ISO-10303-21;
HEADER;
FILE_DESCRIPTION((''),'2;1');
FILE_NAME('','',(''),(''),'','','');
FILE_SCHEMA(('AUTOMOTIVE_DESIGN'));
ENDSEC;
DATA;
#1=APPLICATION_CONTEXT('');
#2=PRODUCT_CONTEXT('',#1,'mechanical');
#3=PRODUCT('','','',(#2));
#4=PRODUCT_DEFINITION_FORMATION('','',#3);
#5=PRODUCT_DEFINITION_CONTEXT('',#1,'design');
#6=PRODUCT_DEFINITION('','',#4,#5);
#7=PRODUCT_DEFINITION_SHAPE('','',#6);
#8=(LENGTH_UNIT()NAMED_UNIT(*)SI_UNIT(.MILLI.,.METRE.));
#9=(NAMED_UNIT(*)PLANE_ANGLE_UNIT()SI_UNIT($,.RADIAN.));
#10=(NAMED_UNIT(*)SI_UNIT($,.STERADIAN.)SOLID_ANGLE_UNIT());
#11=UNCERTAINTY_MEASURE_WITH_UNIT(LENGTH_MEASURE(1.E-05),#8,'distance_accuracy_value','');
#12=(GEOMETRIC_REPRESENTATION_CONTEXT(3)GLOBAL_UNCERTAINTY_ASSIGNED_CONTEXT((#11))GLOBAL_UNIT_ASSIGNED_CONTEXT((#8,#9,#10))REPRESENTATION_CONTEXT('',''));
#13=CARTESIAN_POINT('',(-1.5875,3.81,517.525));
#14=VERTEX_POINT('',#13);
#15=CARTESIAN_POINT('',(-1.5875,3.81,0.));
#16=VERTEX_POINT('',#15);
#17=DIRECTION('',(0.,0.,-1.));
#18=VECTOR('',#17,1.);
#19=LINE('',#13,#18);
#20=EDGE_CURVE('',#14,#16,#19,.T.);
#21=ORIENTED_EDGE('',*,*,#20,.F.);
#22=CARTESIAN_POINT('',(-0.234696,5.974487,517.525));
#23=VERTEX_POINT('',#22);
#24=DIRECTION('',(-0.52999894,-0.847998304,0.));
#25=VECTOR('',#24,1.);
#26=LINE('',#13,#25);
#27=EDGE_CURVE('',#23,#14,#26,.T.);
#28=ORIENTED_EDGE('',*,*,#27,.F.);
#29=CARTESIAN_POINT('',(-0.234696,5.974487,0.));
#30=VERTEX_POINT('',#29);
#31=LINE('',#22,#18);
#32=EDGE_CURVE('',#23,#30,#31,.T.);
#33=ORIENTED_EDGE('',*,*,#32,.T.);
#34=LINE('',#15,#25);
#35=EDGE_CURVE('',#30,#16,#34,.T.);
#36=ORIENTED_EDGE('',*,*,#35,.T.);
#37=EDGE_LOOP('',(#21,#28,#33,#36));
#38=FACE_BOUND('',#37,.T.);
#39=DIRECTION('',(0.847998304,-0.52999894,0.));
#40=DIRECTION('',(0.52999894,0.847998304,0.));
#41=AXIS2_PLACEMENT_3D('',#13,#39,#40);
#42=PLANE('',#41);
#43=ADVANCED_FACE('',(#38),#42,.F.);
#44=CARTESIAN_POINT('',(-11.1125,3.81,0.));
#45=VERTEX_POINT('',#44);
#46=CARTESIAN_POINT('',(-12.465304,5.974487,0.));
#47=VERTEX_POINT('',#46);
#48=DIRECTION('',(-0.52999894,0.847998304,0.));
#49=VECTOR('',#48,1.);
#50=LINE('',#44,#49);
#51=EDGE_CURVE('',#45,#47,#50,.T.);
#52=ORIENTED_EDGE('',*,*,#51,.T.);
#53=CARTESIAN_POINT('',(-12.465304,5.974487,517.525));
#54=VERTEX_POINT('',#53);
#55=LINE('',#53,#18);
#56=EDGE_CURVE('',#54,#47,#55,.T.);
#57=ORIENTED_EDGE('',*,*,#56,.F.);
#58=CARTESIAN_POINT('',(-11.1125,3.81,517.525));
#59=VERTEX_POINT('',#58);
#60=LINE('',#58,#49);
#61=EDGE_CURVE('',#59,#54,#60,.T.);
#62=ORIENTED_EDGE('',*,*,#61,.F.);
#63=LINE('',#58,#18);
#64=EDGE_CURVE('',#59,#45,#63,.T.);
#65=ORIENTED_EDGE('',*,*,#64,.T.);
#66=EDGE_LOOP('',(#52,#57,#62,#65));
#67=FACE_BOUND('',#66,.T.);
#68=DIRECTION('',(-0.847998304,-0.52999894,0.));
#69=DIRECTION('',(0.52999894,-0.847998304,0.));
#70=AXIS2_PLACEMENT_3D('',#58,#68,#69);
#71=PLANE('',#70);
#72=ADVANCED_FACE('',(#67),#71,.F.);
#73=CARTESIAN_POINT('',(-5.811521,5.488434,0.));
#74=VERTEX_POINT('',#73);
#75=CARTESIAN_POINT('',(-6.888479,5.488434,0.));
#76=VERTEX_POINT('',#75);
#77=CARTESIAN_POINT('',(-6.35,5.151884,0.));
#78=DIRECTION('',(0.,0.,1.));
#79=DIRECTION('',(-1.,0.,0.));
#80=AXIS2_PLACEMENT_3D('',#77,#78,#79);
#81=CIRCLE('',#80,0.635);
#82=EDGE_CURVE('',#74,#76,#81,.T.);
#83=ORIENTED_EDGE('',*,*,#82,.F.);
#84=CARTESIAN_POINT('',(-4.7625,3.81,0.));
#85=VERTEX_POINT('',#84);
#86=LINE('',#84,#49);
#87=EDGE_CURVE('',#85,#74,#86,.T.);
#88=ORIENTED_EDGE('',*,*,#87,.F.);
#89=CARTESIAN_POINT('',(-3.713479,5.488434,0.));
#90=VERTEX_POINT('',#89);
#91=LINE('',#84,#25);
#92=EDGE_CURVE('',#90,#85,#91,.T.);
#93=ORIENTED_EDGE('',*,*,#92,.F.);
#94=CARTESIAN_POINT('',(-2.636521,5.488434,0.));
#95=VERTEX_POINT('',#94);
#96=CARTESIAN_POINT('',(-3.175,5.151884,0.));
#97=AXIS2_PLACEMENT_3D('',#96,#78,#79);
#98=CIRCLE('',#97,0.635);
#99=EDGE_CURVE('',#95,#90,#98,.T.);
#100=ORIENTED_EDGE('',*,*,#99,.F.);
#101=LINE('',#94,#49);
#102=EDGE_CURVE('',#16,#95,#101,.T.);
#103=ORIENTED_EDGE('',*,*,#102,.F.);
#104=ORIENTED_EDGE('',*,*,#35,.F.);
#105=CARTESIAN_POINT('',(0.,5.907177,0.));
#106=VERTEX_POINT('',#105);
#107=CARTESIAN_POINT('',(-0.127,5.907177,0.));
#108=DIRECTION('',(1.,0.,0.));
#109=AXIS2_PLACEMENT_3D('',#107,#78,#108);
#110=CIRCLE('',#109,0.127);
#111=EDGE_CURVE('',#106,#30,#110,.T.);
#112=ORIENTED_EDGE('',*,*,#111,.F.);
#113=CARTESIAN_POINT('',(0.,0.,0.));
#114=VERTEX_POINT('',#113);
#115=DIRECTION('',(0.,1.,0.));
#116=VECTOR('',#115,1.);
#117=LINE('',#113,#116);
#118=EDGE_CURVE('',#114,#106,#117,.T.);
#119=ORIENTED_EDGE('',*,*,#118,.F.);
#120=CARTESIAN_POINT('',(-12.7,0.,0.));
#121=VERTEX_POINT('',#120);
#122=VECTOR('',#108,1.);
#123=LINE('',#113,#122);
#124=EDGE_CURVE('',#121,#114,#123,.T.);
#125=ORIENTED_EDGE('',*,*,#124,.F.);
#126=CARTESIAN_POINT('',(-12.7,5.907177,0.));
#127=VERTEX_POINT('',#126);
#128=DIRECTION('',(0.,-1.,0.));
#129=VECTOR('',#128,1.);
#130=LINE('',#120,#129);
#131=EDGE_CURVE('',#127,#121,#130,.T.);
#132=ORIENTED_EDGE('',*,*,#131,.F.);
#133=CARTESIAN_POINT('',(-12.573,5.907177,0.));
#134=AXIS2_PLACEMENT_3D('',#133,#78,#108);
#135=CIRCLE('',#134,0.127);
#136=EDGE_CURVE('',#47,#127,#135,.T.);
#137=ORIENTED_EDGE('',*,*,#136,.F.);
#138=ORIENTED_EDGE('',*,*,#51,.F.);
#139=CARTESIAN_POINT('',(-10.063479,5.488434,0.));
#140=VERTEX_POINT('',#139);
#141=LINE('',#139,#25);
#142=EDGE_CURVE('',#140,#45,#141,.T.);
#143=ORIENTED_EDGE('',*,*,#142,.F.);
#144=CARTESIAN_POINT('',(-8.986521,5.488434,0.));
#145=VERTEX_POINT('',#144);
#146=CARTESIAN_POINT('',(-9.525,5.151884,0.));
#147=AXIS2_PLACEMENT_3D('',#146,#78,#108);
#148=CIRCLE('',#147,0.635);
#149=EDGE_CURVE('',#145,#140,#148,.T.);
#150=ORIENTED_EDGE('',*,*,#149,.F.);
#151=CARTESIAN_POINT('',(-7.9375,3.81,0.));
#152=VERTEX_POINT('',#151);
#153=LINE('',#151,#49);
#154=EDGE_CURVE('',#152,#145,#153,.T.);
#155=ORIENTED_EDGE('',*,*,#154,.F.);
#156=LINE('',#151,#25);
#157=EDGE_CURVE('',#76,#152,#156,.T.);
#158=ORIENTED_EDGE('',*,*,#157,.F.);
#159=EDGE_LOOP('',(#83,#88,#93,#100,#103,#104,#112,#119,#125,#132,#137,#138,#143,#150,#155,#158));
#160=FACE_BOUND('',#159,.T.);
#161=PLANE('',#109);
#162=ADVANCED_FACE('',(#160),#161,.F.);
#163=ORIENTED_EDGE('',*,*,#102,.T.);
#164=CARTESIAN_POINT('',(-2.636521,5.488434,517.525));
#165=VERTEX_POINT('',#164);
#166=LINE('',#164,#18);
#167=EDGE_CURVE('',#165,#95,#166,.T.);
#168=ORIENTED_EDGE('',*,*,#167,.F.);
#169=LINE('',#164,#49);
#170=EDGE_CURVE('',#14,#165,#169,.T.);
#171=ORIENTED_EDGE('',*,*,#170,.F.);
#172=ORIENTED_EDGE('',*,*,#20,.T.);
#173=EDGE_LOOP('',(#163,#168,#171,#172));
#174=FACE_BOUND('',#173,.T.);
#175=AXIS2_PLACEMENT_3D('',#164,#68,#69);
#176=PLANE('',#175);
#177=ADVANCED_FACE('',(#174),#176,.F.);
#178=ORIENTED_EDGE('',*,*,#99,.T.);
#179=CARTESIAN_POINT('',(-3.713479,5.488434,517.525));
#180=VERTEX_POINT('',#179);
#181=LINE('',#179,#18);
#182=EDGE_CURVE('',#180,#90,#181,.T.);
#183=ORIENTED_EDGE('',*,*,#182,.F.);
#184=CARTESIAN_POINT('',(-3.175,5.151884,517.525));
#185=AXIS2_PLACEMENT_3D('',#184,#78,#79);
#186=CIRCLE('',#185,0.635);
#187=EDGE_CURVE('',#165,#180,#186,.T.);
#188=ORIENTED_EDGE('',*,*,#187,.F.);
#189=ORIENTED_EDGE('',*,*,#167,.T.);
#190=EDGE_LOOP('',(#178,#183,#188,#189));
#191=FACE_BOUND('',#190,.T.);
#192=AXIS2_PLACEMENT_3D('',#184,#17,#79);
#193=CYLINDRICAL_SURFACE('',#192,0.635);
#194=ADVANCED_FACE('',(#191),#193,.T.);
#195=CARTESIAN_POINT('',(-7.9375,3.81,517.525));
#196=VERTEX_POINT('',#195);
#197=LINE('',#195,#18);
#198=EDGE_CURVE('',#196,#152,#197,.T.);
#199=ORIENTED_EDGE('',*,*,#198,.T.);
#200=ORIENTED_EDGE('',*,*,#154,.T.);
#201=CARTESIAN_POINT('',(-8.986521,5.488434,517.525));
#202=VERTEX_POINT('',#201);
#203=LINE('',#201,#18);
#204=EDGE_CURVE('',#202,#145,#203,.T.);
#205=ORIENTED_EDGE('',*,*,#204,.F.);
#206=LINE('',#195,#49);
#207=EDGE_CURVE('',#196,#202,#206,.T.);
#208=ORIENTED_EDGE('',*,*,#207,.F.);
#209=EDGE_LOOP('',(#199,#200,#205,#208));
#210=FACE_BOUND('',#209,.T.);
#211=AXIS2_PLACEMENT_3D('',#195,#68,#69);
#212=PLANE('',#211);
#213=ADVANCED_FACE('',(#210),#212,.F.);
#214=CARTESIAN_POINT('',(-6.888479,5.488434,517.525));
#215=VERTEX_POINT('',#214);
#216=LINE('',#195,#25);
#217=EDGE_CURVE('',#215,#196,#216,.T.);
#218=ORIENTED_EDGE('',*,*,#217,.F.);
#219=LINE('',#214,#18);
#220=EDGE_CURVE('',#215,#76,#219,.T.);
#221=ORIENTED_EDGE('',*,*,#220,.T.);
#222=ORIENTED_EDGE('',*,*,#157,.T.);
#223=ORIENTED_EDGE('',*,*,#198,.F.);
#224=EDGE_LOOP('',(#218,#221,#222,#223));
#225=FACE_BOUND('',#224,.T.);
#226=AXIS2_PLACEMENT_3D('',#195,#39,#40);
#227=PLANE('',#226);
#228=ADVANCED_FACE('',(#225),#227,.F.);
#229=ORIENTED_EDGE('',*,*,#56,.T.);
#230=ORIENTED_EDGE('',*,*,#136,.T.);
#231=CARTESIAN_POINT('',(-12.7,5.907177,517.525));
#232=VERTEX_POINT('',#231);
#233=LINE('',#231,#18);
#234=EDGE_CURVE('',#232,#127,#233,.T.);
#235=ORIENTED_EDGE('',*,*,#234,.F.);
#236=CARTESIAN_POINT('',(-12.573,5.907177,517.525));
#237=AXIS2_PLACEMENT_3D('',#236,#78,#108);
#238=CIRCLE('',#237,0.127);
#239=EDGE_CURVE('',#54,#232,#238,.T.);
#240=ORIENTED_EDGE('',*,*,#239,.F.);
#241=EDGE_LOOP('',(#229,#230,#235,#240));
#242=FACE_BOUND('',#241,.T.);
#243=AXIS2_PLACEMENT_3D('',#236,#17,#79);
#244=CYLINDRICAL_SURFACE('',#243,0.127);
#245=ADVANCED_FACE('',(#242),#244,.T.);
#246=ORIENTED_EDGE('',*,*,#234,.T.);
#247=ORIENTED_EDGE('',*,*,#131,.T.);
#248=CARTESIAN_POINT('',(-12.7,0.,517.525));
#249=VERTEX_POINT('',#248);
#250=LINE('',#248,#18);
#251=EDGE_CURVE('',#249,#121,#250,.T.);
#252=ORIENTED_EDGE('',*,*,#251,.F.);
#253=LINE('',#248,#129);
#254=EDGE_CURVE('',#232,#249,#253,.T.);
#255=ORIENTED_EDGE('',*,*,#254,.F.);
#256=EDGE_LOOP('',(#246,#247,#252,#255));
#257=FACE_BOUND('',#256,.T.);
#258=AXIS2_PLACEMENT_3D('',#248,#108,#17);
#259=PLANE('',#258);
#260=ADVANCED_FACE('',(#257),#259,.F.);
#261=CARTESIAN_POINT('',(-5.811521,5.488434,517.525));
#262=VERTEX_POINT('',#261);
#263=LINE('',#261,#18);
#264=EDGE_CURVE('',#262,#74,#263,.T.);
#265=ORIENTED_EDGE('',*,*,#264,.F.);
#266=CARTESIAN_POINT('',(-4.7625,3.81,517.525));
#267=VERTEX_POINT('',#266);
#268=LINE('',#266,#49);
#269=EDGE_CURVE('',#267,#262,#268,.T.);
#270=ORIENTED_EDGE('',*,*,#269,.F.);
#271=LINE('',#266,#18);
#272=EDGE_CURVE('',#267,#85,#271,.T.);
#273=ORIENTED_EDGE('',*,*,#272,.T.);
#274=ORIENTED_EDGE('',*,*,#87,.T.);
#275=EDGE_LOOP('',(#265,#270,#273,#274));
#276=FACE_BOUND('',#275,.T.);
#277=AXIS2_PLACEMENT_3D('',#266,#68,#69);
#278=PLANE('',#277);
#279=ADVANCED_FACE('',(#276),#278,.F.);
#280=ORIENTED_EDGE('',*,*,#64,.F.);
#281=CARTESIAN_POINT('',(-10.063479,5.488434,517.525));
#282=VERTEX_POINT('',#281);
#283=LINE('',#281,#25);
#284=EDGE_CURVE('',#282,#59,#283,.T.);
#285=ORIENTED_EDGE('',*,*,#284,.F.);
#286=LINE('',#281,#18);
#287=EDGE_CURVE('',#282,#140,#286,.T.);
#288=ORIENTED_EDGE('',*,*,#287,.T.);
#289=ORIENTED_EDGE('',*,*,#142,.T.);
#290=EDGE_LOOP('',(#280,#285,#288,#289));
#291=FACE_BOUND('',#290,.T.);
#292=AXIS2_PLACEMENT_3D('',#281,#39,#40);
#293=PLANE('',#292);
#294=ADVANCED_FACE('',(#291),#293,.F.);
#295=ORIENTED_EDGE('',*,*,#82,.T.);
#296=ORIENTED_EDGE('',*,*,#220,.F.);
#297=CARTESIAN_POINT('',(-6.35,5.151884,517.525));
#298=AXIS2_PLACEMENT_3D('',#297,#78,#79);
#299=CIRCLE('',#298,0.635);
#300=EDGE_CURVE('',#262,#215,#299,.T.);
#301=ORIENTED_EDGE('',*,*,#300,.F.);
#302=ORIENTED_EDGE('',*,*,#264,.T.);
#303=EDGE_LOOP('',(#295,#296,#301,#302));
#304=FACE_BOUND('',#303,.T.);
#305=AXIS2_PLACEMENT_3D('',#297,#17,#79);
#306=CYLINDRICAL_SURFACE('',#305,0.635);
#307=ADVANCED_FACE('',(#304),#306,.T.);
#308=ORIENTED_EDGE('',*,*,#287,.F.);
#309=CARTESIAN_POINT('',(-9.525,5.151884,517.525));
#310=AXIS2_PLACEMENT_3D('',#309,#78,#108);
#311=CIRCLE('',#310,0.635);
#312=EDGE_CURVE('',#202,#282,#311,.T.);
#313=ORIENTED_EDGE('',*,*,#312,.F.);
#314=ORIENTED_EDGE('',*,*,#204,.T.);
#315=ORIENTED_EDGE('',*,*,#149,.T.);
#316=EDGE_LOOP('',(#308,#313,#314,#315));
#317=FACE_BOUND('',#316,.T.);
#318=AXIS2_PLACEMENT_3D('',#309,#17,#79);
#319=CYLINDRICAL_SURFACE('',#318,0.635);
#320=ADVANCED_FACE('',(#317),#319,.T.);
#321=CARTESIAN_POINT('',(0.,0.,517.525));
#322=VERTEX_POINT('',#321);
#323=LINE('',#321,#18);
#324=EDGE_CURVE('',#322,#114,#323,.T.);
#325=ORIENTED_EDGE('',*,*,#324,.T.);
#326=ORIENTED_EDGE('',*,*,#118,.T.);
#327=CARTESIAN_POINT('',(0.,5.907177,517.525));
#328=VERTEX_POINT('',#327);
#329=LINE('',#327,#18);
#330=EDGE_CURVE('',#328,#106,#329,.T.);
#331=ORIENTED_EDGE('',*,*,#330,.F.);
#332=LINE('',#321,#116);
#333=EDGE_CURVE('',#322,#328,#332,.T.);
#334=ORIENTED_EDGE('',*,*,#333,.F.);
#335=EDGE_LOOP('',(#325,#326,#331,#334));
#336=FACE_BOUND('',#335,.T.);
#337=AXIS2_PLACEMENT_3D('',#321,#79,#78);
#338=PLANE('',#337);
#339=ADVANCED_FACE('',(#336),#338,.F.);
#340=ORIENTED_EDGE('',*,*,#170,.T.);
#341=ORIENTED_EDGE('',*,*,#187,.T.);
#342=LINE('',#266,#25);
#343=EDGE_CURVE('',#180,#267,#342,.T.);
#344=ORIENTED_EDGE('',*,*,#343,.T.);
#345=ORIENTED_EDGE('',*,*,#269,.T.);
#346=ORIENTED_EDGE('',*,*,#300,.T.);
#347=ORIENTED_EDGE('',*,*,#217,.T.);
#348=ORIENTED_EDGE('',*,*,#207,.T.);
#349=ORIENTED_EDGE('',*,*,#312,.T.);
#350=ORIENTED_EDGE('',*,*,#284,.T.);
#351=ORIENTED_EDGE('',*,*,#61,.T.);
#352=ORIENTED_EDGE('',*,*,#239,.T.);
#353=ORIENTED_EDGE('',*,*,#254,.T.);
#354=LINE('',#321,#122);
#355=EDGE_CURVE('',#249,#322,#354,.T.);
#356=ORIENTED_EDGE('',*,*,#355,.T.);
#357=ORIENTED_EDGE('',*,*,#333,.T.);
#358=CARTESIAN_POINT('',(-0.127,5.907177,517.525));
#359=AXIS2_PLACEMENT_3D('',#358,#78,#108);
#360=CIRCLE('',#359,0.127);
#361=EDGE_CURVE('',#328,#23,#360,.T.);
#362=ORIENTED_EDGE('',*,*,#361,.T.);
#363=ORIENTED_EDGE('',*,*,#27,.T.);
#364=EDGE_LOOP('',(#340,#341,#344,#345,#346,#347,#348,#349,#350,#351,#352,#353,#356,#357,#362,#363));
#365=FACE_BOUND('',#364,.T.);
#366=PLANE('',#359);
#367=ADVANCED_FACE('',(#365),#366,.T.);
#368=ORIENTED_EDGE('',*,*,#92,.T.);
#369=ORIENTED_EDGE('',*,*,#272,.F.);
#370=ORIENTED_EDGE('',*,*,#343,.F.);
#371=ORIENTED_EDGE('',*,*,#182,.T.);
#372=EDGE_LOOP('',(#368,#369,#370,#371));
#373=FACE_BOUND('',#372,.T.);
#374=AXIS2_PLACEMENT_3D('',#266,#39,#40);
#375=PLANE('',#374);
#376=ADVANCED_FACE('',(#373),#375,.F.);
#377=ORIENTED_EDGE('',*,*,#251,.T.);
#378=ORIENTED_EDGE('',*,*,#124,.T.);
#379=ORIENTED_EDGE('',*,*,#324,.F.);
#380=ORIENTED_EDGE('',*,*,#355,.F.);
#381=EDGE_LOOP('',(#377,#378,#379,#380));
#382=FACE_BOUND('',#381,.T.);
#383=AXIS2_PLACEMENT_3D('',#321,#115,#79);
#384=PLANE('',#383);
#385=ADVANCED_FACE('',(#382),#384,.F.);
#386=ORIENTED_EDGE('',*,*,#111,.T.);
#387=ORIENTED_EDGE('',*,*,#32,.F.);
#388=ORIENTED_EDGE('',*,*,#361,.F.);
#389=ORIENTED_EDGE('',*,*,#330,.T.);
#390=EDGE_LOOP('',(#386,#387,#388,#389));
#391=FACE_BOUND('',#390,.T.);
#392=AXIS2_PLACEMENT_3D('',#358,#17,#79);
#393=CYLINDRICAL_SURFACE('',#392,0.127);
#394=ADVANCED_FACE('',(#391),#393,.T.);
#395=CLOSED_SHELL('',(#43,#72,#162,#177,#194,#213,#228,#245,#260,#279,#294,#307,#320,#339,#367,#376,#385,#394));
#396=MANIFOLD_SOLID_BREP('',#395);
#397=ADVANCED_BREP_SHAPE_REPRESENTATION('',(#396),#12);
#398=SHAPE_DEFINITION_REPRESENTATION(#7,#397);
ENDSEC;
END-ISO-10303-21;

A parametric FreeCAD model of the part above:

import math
import FreeCAD as App
import Part
import Sketcher
from FreeCAD import Vector
Q = App.Units.Quantity

doc = App.newDocument("Part")
body = doc.addObject("PartDesign::Body", "Body")

sketch1 = body.newObject("Sketcher::SketchObject", "Sketch")
sketch1.AttachmentSupport = (doc.getObject("XY_Plane"), [""])
sketch1.MapMode = "FlatFace"
sketch1.addGeometry([
    Part.LineSegment(Vector(-12.7, 0, 0), Vector(0, 0, 0)),
    Part.LineSegment(Vector(0, 0, 0), Vector(0, 5.907177, 0)),
    Part.ArcOfCircle(Part.Circle(Vector(-0.127, 5.907177, 0), Vector(0, 0, 1), 0.127), math.radians(0), math.radians(147.994617)),
    Part.LineSegment(Vector(-0.234696, 5.974487, 0), Vector(-1.5875, 3.81, 0)),
    Part.LineSegment(Vector(-1.5875, 3.81, 0), Vector(-2.636521, 5.488434, 0)),
    Part.ArcOfCircle(Part.Circle(Vector(-3.175, 5.151884, 0), Vector(0, 0, 1), 0.635), math.radians(32.005383), math.radians(147.994617)),
    Part.LineSegment(Vector(-3.713479, 5.488434, 0), Vector(-4.7625, 3.81, 0)),
    Part.LineSegment(Vector(-4.7625, 3.81, 0), Vector(-5.811521, 5.488434, 0)),
    Part.ArcOfCircle(Part.Circle(Vector(-6.35, 5.151884, 0), Vector(0, 0, 1), 0.635), math.radians(32.005383), math.radians(147.994617)),
    Part.LineSegment(Vector(-6.888479, 5.488434, 0), Vector(-7.9375, 3.81, 0)),
    Part.LineSegment(Vector(-7.9375, 3.81, 0), Vector(-8.986521, 5.488434, 0)),
    Part.ArcOfCircle(Part.Circle(Vector(-9.525, 5.151884, 0), Vector(0, 0, 1), 0.635), math.radians(32.005383), math.radians(147.994617)),
    Part.LineSegment(Vector(-10.063479, 5.488434, 0), Vector(-11.1125, 3.81, 0)),
    Part.LineSegment(Vector(-11.1125, 3.81, 0), Vector(-12.465304, 5.974487, 0)),
    Part.ArcOfCircle(Part.Circle(Vector(-12.573, 5.907177, 0), Vector(0, 0, 1), 0.127), math.radians(32.005383), math.radians(180)),
    Part.LineSegment(Vector(-12.7, 5.907177, 0), Vector(-12.7, 0, 0)),
], False)
sketch1.addConstraint([
    Sketcher.Constraint("Coincident", 0, 2, 1, 1),
    Sketcher.Constraint("Tangent", 1, 2, 2, 1),
    Sketcher.Constraint("Tangent", 2, 2, 3, 1),
    Sketcher.Constraint("Coincident", 3, 2, 4, 1),
    Sketcher.Constraint("Tangent", 4, 2, 5, 1),
    Sketcher.Constraint("Tangent", 5, 2, 6, 1),
    Sketcher.Constraint("Coincident", 6, 2, 7, 1),
    Sketcher.Constraint("Tangent", 7, 2, 8, 1),
    Sketcher.Constraint("Tangent", 8, 2, 9, 1),
    Sketcher.Constraint("Coincident", 9, 2, 10, 1),
    Sketcher.Constraint("Tangent", 10, 2, 11, 1),
    Sketcher.Constraint("Tangent", 11, 2, 12, 1),
    Sketcher.Constraint("Coincident", 12, 2, 13, 1),
    Sketcher.Constraint("Tangent", 13, 2, 14, 1),
    Sketcher.Constraint("Tangent", 14, 2, 15, 1),
    Sketcher.Constraint("Coincident", 15, 2, 0, 1),
    Sketcher.Constraint("Horizontal", 0),
    Sketcher.Constraint("Vertical", 1),
    Sketcher.Constraint("Vertical", 15),
    Sketcher.Constraint("Coincident", 0, 2, -1, 1),
    Sketcher.Constraint("Equal", 5, 8),
    Sketcher.Constraint("Equal", 8, 11),
    Sketcher.Constraint("Equal", 2, 14),
    Sketcher.Constraint("Parallel", 3, 6),
    Sketcher.Constraint("Parallel", 4, 7),
    Sketcher.Constraint("Parallel", 6, 9),
    Sketcher.Constraint("Parallel", 7, 10),
    Sketcher.Constraint("Parallel", 9, 12),
    Sketcher.Constraint("Parallel", 10, 13),
    Sketcher.Constraint("Horizontal", 5, 3, 8, 3),
    Sketcher.Constraint("Horizontal", 8, 3, 11, 3),
    Sketcher.Constraint("Horizontal", 2, 3, 14, 3),
    Sketcher.Constraint("Horizontal", 4, 2, 5, 2),
    Sketcher.Constraint("Horizontal", 3, 2, 6, 2),
    Sketcher.Constraint("Horizontal", 6, 2, 9, 2),
    Sketcher.Constraint("Horizontal", 9, 2, 12, 2),
    Sketcher.Constraint("DistanceX", 0, 1, 0, 2, Q("0.5 in")),
    Sketcher.Constraint("Radius", 2, Q("0.005 in")),
    Sketcher.Constraint("Radius", 5, Q("0.025 in")),
    Sketcher.Constraint("DistanceY", -1, 1, 3, 2, Q("0.15 in")),
    Sketcher.Constraint("DistanceX", 5, 3, 2, 3, Q("0.12 in")),
    Sketcher.Constraint("DistanceX", 4, 2, -1, 1, Q("0.1038 in")),
])
pad1 = body.newObject("PartDesign::Pad", "Pad")
pad1.Profile = sketch1
pad1.Length = Q("20.375 in")

doc.recompute()
